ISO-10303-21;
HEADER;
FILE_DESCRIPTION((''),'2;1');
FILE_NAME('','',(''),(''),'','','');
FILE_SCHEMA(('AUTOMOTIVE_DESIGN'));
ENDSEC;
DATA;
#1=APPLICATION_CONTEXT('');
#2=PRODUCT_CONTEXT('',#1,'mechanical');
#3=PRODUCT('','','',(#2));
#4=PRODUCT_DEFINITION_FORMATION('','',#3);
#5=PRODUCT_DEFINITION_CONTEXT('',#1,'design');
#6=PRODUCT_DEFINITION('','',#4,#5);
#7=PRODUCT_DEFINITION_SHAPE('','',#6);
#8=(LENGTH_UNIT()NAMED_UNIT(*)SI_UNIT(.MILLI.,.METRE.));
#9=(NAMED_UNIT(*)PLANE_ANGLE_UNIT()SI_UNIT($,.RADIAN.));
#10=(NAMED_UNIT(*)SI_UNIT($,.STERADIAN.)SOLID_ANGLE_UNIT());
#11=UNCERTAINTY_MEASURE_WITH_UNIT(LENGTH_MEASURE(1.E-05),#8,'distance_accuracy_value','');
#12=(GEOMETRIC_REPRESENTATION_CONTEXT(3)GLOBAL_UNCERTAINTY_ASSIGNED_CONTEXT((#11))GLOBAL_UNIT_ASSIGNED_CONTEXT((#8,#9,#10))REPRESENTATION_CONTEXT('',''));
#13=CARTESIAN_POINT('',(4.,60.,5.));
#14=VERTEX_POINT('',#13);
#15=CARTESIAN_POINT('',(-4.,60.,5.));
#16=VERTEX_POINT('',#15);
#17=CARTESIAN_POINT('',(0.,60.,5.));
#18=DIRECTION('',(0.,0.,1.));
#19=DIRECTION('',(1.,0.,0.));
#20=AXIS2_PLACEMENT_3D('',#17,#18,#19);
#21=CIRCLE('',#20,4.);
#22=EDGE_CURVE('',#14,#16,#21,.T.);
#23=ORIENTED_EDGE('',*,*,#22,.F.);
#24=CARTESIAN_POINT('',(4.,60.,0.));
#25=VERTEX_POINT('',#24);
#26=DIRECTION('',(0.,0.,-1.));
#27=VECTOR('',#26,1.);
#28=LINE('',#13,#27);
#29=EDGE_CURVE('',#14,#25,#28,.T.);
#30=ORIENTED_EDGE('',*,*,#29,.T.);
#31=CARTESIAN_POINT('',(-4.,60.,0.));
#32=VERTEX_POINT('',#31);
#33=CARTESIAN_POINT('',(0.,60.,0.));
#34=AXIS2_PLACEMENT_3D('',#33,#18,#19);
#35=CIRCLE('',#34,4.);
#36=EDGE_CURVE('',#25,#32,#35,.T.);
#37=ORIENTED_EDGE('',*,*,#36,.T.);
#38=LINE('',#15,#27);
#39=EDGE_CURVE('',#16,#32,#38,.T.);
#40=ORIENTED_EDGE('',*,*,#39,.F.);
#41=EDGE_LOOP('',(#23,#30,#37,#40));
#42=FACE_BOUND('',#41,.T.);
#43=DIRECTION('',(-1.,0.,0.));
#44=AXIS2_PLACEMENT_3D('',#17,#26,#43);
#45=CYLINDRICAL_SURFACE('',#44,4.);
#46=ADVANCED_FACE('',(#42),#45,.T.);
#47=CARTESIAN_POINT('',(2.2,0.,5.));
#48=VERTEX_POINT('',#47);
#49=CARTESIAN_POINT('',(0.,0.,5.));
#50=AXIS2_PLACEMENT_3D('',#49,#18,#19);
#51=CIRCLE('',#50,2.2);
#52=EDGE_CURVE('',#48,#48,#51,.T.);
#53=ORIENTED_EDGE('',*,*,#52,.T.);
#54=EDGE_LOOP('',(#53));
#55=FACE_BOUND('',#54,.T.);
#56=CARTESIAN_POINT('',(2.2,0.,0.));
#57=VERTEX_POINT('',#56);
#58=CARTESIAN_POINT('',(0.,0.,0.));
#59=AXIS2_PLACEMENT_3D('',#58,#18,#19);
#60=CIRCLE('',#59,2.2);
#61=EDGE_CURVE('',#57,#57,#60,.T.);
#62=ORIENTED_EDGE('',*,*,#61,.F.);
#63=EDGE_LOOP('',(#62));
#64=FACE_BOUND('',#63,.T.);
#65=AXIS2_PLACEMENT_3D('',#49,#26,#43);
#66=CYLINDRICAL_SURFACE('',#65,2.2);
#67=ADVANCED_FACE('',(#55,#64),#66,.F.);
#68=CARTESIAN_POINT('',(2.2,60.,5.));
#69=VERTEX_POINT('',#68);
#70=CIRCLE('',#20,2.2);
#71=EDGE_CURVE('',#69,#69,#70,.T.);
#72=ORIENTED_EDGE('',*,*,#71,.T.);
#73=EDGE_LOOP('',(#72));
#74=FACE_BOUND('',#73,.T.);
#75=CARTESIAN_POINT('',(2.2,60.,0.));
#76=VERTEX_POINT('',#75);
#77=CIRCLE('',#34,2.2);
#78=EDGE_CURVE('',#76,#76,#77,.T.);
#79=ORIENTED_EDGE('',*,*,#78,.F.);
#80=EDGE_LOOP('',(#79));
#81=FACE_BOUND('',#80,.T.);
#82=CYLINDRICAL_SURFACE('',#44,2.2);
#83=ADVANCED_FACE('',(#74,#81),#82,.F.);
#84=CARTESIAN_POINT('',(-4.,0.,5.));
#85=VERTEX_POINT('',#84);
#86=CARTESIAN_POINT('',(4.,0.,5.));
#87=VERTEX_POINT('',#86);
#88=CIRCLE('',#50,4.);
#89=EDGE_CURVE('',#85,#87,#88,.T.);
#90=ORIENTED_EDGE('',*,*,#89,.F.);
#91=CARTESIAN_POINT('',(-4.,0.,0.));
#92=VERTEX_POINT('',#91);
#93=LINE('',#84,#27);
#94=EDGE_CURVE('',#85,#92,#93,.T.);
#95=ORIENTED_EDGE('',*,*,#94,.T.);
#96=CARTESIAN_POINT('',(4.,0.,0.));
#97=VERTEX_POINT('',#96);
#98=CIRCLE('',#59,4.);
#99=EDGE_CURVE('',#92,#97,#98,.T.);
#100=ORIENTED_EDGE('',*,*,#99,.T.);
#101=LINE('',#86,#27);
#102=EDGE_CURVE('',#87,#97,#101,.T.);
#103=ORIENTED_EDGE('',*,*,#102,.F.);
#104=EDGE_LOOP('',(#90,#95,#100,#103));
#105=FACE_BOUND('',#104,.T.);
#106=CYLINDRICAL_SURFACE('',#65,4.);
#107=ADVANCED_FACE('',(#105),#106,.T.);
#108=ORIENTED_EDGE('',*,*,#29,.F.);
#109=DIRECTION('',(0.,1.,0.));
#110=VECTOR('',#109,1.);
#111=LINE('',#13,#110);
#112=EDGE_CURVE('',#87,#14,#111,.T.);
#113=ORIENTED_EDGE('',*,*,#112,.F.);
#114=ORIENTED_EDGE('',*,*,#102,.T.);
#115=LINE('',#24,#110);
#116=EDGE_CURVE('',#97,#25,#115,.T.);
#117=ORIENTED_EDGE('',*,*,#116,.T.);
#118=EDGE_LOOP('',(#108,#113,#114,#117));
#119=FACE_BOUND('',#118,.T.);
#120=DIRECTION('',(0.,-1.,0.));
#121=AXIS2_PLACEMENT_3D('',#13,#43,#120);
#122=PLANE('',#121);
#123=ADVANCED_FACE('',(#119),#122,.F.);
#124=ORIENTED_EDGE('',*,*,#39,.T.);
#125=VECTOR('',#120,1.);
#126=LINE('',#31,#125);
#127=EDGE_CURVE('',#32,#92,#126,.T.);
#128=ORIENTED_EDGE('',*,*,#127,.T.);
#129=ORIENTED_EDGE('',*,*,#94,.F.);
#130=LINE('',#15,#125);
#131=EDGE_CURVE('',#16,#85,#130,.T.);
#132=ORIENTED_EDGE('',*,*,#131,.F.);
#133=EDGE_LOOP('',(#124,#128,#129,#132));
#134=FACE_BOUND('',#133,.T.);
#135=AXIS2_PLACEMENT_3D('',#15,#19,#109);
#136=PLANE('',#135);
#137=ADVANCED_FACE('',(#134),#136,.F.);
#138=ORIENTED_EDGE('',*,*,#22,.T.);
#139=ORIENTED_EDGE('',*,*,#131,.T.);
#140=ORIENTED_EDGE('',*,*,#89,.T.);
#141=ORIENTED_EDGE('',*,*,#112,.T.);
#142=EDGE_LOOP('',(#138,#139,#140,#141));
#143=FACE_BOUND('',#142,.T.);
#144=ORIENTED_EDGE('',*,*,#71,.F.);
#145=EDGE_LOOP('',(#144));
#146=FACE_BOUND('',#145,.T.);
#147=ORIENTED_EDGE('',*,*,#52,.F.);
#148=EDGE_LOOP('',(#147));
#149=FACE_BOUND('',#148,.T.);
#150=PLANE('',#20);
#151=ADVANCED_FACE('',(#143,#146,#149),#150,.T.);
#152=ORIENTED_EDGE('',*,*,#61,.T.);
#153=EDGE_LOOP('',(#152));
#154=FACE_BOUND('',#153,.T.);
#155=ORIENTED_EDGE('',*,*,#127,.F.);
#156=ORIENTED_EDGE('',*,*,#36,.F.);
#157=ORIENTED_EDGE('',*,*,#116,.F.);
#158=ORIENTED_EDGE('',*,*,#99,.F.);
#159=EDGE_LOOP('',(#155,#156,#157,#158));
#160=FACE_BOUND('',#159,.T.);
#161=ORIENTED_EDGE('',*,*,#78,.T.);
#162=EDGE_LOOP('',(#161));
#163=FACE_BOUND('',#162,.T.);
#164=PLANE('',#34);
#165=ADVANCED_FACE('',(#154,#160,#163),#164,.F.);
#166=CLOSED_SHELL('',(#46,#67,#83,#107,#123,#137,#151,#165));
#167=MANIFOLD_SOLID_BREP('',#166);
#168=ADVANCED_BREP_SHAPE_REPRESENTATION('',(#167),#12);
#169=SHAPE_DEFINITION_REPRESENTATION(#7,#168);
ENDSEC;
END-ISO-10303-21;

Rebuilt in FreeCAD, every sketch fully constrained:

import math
import FreeCAD as App
import Part
import Sketcher

doc = App.newDocument("Part")
body = doc.addObject("PartDesign::Body", "Body")

# Sketch on XY plane
sketch1 = body.newObject("Sketcher::SketchObject", "Sketch")
sketch1.AttachmentSupport = (doc.getObject("XY_Plane"), [""])
sketch1.MapMode = "FlatFace"
sketch1.addGeometry([
    Part.LineSegment(App.Vector(-4, 60, 0), App.Vector(-4, 0, 0)),  # 0
    Part.ArcOfCircle(Part.Circle(App.Vector(0, 0, 0), App.Vector(0, 0, 1), 4), math.radians(180), math.radians(360)),  # 1
    Part.LineSegment(App.Vector(4, 0, 0), App.Vector(4, 60, 0)),  # 2
    Part.ArcOfCircle(Part.Circle(App.Vector(0, 60, 0), App.Vector(0, 0, 1), 4), math.radians(0), math.radians(180)),  # 3
    Part.Circle(App.Vector(0, 0, 0), App.Vector(0, 0, 1), 2.2),  # 4
    Part.Circle(App.Vector(0, 60, 0), App.Vector(0, 0, 1), 2.2),  # 5
], False)
sketch1.addConstraint([
    Sketcher.Constraint("Tangent", 0, 2, 1, 1),
    Sketcher.Constraint("Tangent", 1, 2, 2, 1),
    Sketcher.Constraint("Tangent", 2, 2, 3, 1),
    Sketcher.Constraint("Tangent", 3, 2, 0, 1),
    Sketcher.Constraint("Vertical", 0),
    Sketcher.Constraint("Vertical", 2),
    Sketcher.Constraint("Coincident", 1, 3, -1, 1),
    Sketcher.Constraint("Coincident", 4, 3, -1, 1),
    Sketcher.Constraint("Coincident", 5, 3, 3, 3),
    Sketcher.Constraint("Equal", 4, 5),
    Sketcher.Constraint("Radius", 1, 4.0),
    Sketcher.Constraint("Diameter", 4, 4.4),
    Sketcher.Constraint("DistanceY", 0, 2, 0, 1, 60.0),
])
pad1 = body.newObject("PartDesign::Pad", "Pad")
pad1.Profile = sketch1
pad1.Length = 5

doc.recompute()
